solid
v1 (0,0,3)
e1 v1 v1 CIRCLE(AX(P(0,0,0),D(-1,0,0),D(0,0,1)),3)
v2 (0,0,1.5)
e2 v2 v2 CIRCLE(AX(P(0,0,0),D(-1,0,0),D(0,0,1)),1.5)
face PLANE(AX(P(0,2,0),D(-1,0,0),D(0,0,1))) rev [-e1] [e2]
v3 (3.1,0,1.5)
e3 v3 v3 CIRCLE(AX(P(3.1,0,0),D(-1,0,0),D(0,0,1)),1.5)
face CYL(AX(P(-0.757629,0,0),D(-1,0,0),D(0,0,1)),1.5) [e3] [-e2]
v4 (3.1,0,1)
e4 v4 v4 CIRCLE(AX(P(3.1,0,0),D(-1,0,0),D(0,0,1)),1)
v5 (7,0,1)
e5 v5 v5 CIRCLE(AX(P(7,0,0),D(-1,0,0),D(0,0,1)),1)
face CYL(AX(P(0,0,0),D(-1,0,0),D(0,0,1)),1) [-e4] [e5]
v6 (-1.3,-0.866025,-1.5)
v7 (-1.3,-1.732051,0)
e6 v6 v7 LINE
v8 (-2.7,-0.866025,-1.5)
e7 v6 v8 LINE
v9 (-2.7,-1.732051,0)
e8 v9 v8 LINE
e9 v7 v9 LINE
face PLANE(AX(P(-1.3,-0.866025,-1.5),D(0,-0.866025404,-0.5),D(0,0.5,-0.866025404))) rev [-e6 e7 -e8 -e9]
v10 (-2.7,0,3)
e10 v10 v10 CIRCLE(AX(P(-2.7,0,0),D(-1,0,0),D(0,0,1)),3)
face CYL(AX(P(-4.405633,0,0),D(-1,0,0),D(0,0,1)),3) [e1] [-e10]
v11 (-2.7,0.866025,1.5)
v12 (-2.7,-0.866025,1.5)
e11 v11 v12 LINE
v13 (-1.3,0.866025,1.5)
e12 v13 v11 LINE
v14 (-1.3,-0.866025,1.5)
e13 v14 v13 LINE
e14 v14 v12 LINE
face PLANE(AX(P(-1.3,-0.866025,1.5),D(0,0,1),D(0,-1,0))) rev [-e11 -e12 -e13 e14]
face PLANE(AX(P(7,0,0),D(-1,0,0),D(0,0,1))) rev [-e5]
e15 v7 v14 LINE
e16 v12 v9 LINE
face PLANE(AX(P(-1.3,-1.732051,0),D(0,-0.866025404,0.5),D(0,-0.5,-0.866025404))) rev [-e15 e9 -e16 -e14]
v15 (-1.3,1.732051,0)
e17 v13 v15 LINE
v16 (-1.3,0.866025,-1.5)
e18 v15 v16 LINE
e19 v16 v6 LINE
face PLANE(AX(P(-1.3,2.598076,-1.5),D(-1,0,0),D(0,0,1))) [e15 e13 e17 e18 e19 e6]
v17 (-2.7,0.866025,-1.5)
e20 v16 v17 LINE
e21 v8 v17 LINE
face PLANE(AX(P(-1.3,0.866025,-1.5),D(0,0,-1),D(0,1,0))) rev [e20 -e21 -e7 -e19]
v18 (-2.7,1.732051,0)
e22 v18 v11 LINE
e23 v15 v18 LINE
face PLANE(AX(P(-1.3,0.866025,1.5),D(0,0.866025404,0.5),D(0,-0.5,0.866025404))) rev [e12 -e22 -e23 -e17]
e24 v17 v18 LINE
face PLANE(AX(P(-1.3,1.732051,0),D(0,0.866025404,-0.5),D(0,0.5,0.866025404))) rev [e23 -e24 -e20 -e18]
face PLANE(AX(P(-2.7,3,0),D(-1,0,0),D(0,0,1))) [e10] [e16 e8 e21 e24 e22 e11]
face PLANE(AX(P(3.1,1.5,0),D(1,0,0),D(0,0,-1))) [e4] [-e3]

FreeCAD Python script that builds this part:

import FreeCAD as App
import Part
import Sketcher

V = App.Vector
Q = App.Units.Quantity

doc = App.newDocument("Part")
body = doc.addObject("PartDesign::Body", "Body")

sketch1 = body.newObject("Sketcher::SketchObject", "Sketch")
sketch1.AttachmentSupport = (doc.getObject("XY_Plane"), [""])
sketch1.MapMode = "FlatFace"
sketch1.addGeometry([
    Part.LineSegment(V(-4, 0, 0), V(7, 0, 0)),
    Part.LineSegment(V(7, 0, 0), V(7, 2, 0)),
    Part.LineSegment(V(7, 2, 0), V(0, 2, 0)),
    Part.LineSegment(V(0, 2, 0), V(0, 3.6, 0)),
    Part.LineSegment(V(0, 3.6, 0), V(-4, 3.6, 0)),
    Part.LineSegment(V(-4, 3.6, 0), V(-4, 0, 0)),
], False)
sketch1.addConstraint([
    Sketcher.Constraint("Coincident", 0, 2, 1, 1),
    Sketcher.Constraint("Coincident", 1, 2, 2, 1),
    Sketcher.Constraint("Coincident", 2, 2, 3, 1),
    Sketcher.Constraint("Coincident", 3, 2, 4, 1),
    Sketcher.Constraint("Coincident", 4, 2, 5, 1),
    Sketcher.Constraint("Coincident", 5, 2, 0, 1),
    Sketcher.Constraint("Horizontal", 0),
    Sketcher.Constraint("Vertical", 1),
    Sketcher.Constraint("Horizontal", 2),
    Sketcher.Constraint("Vertical", 3),
    Sketcher.Constraint("Horizontal", 4),
    Sketcher.Constraint("Vertical", 5),
    Sketcher.Constraint("PointOnObject", 0, 2, -1),
    Sketcher.Constraint("PointOnObject", 2, 2, -2),
    Sketcher.Constraint("DistanceX", 0, 1, 0, 2, 11.0),
    Sketcher.Constraint("DistanceX", 2, 2, 2, 1, 7.0),
    Sketcher.Constraint("DistanceY", 1, 1, 1, 2, 2.0),
    Sketcher.Constraint("DistanceY", 3, 1, 3, 2, 1.6),
])
revolution = body.newObject("PartDesign::Revolution", "Revolution")
revolution.Profile = sketch1
revolution.ReferenceAxis = (sketch1, ["H_Axis"])
revolution.Angle = 360

sketch2 = body.newObject("Sketcher::SketchObject", "Sketch001")
sketch2.AttachmentSupport = (doc.getObject("YZ_Plane"), [""])
sketch2.MapMode = "FlatFace"
sketch2.AttachmentOffset = App.Placement(V(0, 0, -4), App.Rotation())
sketch2.addGeometry([
    Part.LineSegment(V(1.7, 0, 0), V(0.9, -1.5, 0)),
    Part.LineSegment(V(0.9, -1.5, 0), V(-0.9, -1.5, 0)),
    Part.LineSegment(V(-0.9, -1.5, 0), V(-1.7, 0, 0)),
    Part.LineSegment(V(-1.7, 0, 0), V(-0.9, 1.5, 0)),
    Part.LineSegment(V(-0.9, 1.5, 0), V(0.9, 1.5, 0)),
    Part.LineSegment(V(0.9, 1.5, 0), V(1.7, 0, 0)),
], False)
sketch2.addConstraint([
    Sketcher.Constraint("Coincident", 0, 2, 1, 1),
    Sketcher.Constraint("Coincident", 1, 2, 2, 1),
    Sketcher.Constraint("Coincident", 2, 2, 3, 1),
    Sketcher.Constraint("Coincident", 3, 2, 4, 1),
    Sketcher.Constraint("Coincident", 4, 2, 5, 1),
    Sketcher.Constraint("Coincident", 5, 2, 0, 1),
    Sketcher.Constraint("Horizontal", 1),
    Sketcher.Constraint("Horizontal", 4),
    Sketcher.Constraint("Symmetric", 0, 2, 3, 2, -1, 1),
    Sketcher.Constraint("Symmetric", 2, 2, 5, 2, -1, 1),
    Sketcher.Constraint("PointOnObject", 2, 2, -1),
    Sketcher.Constraint("Parallel", 2, 5),
    Sketcher.Constraint("Vertical", 1, 2, 3, 2),
    Sketcher.Constraint("Angle", 0, Q("-120 deg")),
    Sketcher.Constraint("DistanceY", 1, 2, 3, 2, 3.0),
    Sketcher.Constraint("DistanceX", 1, 2, 1, 1, 1.732051),
])
pocket1 = body.newObject("PartDesign::Pocket", "Pocket")
pocket1.Profile = sketch2
pocket1.Length = 2.7
pocket1.Reversed = True

sketch3 = body.newObject("Sketcher::SketchObject", "Sketch002")
sketch3.AttachmentSupport = (doc.getObject("XY_Plane"), [""])
sketch3.MapMode = "FlatFace"
sketch3.addGeometry([
    Part.LineSegment(V(0, 3.6, 0), V(0, 1.5, 0)),
    Part.LineSegment(V(0, 1.5, 0), V(7, 1.5, 0)),
    Part.LineSegment(V(7, 1.5, 0), V(7, 3.6, 0)),
    Part.LineSegment(V(7, 3.6, 0), V(0, 3.6, 0)),
], False)
sketch3.addConstraint([
    Sketcher.Constraint("Coincident", 0, 2, 1, 1),
    Sketcher.Constraint("Coincident", 1, 2, 2, 1),
    Sketcher.Constraint("Coincident", 2, 2, 3, 1),
    Sketcher.Constraint("Coincident", 3, 2, 0, 1),
    Sketcher.Constraint("Vertical", 0),
    Sketcher.Constraint("Horizontal", 1),
    Sketcher.Constraint("Vertical", 2),
    Sketcher.Constraint("Horizontal", 3),
    Sketcher.Constraint("PointOnObject", 0, 2, -2),
    Sketcher.Constraint("DistanceX", 1, 1, 1, 2, 7.0),
    Sketcher.Constraint("DistanceY", 0, 2, 0, 1, 2.1),
    Sketcher.Constraint("DistanceY", -1, 1, 0, 2, 1.5),
])
groove = body.newObject("PartDesign::Groove", "Groove")
groove.Profile = sketch3
groove.ReferenceAxis = (sketch3, ["H_Axis"])
groove.Angle = 360

sketch4 = body.newObject("Sketcher::SketchObject", "Sketch003")
sketch4.AttachmentSupport = (doc.getObject("XY_Plane"), [""])
sketch4.MapMode = "FlatFace"
sketch4.addGeometry([
    Part.LineSegment(V(3.1, 1.5, 0), V(3.1, 1, 0)),
    Part.LineSegment(V(3.1, 1, 0), V(7, 1, 0)),
    Part.LineSegment(V(7, 1, 0), V(7, 1.5, 0)),
    Part.LineSegment(V(7, 1.5, 0), V(3.1, 1.5, 0)),
], False)
sketch4.addConstraint([
    Sketcher.Constraint("Coincident", 0, 2, 1, 1),
    Sketcher.Constraint("Coincident", 1, 2, 2, 1),
    Sketcher.Constraint("Coincident", 2, 2, 3, 1),
    Sketcher.Constraint("Coincident", 3, 2, 0, 1),
    Sketcher.Constraint("Vertical", 0),
    Sketcher.Constraint("Horizontal", 1),
    Sketcher.Constraint("Vertical", 2),
    Sketcher.Constraint("Horizontal", 3),
    Sketcher.Constraint("DistanceX", 1, 1, 1, 2, 3.9),
    Sketcher.Constraint("DistanceY", 0, 2, 0, 1, 0.5),
    Sketcher.Constraint("DistanceY", -1, 1, 0, 2, 1.0),
    Sketcher.Constraint("DistanceX", -1, 1, 1, 2, 7.0),
])
groove2 = body.newObject("PartDesign::Groove", "Groove001")
groove2.Profile = sketch4
groove2.ReferenceAxis = (sketch4, ["H_Axis"])
groove2.Angle = 360

sketch5 = body.newObject("Sketcher::SketchObject", "Sketch004")
sketch5.AttachmentSupport = (doc.getObject("XY_Plane"), [""])
sketch5.MapMode = "FlatFace"
sketch5.addGeometry([
    Part.LineSegment(V(-2.7, 3, 0), V(0, 3, 0)),
    Part.LineSegment(V(0, 3, 0), V(0, 3.6, 0)),
    Part.LineSegment(V(0, 3.6, 0), V(-4, 3.6, 0)),
    Part.LineSegment(V(-4, 3.6, 0), V(-4, 0, 0)),
    Part.LineSegment(V(-4, 0, 0), V(-2.7, 0, 0)),
    Part.LineSegment(V(-2.7, 0, 0), V(-2.7, 3, 0)),
], False)
sketch5.addConstraint([
    Sketcher.Constraint("Coincident", 0, 2, 1, 1),
    Sketcher.Constraint("Coincident", 1, 2, 2, 1),
    Sketcher.Constraint("Coincident", 2, 2, 3, 1),
    Sketcher.Constraint("Coincident", 3, 2, 4, 1),
    Sketcher.Constraint("Coincident", 4, 2, 5, 1),
    Sketcher.Constraint("Coincident", 5, 2, 0, 1),
    Sketcher.Constraint("Horizontal", 0),
    Sketcher.Constraint("Vertical", 1),
    Sketcher.Constraint("Horizontal", 2),
    Sketcher.Constraint("Vertical", 3),
    Sketcher.Constraint("Horizontal", 4),
    Sketcher.Constraint("Vertical", 5),
    Sketcher.Constraint("PointOnObject", 0, 2, -2),
    Sketcher.Constraint("PointOnObject", 3, 2, -1),
    Sketcher.Constraint("DistanceX", 2, 2, 2, 1, 4.0),
    Sketcher.Constraint("DistanceY", 5, 1, 5, 2, 3.0),
    Sketcher.Constraint("DistanceX", 0, 1, 0, 2, 2.7),
    Sketcher.Constraint("DistanceY", 1, 1, 1, 2, 0.6),
])
groove3 = body.newObject("PartDesign::Groove", "Groove002")
groove3.Profile = sketch5
groove3.ReferenceAxis = (sketch5, ["H_Axis"])
groove3.Angle = 360

doc.recompute()
